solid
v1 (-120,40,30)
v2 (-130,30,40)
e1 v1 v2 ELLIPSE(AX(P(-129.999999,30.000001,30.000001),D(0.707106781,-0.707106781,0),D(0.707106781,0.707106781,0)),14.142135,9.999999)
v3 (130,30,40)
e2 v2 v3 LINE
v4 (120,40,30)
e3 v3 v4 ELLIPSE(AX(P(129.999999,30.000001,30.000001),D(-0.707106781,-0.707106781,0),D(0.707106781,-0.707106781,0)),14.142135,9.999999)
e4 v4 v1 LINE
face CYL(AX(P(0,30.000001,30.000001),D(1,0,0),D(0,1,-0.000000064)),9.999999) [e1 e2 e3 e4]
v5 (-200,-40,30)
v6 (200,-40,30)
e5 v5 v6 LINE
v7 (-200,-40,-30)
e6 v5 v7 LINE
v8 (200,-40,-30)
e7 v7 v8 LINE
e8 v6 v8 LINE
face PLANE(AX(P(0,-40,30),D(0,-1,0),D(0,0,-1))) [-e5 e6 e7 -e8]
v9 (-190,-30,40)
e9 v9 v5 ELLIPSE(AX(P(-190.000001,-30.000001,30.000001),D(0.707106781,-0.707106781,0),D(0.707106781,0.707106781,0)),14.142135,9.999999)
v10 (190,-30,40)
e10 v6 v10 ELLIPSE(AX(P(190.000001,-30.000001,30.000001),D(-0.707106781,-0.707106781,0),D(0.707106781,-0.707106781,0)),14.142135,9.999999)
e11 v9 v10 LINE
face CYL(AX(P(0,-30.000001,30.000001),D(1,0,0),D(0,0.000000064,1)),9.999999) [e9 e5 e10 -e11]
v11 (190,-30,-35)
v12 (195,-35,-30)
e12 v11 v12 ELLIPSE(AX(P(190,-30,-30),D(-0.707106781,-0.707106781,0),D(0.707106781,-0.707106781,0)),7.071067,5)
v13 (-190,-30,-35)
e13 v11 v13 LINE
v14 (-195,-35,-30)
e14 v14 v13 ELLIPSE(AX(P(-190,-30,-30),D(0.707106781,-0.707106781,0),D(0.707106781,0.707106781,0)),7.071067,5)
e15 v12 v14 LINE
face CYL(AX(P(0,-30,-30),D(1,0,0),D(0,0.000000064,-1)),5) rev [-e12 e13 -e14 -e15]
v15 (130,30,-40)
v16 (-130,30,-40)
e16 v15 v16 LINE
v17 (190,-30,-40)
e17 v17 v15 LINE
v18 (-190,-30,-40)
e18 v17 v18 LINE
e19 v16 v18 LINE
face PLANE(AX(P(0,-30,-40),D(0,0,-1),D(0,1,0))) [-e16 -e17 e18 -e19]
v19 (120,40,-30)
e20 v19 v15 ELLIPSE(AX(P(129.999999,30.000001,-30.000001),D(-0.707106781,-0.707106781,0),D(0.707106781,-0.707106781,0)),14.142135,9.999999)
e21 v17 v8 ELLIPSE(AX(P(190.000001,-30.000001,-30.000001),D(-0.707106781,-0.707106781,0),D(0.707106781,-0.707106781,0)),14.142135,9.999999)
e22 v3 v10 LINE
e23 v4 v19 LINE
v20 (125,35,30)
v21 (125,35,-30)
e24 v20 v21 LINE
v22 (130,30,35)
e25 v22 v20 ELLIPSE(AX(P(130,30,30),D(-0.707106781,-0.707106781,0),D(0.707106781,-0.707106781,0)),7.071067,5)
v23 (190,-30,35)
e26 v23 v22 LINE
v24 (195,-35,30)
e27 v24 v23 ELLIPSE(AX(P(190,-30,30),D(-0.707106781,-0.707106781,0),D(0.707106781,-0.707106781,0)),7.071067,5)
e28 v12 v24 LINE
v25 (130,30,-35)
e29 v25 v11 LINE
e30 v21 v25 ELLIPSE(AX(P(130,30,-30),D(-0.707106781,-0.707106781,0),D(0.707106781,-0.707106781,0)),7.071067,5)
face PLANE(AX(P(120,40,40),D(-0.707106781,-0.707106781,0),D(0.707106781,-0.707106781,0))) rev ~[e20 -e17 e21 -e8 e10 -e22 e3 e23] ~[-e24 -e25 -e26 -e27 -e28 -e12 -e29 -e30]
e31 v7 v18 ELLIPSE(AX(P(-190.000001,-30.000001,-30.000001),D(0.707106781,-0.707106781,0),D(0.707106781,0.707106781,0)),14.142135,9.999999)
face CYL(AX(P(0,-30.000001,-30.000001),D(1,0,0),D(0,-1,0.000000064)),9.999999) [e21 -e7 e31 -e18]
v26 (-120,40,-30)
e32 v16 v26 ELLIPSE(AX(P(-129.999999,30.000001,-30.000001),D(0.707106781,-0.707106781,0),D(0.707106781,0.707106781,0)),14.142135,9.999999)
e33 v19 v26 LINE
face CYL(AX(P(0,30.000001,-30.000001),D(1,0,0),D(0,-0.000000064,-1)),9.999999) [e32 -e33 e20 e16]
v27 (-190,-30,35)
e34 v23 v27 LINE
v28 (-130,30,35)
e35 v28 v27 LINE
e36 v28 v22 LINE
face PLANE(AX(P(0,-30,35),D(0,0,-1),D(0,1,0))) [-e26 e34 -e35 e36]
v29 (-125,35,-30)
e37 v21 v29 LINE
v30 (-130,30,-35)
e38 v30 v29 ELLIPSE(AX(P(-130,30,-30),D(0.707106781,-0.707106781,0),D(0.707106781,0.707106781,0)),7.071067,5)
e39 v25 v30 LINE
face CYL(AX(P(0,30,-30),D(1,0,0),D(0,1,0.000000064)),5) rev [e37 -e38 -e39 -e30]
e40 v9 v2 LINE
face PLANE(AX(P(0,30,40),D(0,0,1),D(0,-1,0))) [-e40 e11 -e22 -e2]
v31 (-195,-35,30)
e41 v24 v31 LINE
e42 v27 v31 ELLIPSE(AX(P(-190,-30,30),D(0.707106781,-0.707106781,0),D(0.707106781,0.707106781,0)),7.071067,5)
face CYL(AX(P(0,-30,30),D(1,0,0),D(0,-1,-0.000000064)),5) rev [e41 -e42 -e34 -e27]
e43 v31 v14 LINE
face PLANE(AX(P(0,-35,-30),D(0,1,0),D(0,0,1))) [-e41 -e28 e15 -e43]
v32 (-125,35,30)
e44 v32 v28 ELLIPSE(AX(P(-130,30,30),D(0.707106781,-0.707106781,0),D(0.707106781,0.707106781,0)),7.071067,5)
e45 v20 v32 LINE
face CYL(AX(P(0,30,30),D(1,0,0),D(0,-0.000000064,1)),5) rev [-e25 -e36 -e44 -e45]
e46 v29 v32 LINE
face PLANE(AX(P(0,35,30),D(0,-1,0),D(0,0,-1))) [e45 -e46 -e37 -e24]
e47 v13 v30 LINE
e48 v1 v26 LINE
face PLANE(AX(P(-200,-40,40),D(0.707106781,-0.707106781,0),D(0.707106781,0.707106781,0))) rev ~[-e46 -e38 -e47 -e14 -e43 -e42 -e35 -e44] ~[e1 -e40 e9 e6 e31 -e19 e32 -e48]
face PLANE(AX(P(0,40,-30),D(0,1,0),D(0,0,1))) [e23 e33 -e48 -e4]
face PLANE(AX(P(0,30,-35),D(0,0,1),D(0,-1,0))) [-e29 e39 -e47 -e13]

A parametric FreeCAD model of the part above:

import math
import FreeCAD as App
import Part
import Sketcher


def add_polygon(sketch, points):
    """Adds a closed chain of lines whose ends are joined by coincident constraints."""
    first, n = sketch.GeometryCount, len(points)
    for a, b in zip(points, points[1:] + points[:1]):
        sketch.addGeometry(Part.LineSegment(App.Vector(*a, 0), App.Vector(*b, 0)), False)
    for i in range(n):
        sketch.addConstraint(Sketcher.Constraint("Coincident", first + i, 2, first + (i + 1) % n, 1))

doc = App.newDocument("Part")
params = doc.addObject("Spreadsheet::Sheet", "Params")
for row, (alias, value) in enumerate([
    ("sketch1_radius", "9.999999 mm"),
    ("sketch1_radius2", "5 mm"),
    ("sketch1_width", "60 mm"),
    ("pad1_length", "400 mm"),
    ("sketch2_width", "80 mm"),
], start=1):
    params.set(f"A{row}", alias)
    params.set(f"B{row}", "=" + value)
    params.setAlias(f"B{row}", alias)

body = doc.addObject("PartDesign::Body", "Body")

# Sketch on YZ plane
sketch1 = body.newObject("Sketcher::SketchObject", "Sketch")
sketch1.AttachmentSupport = (doc.getObject("YZ_Plane"), [""])
sketch1.MapMode = "FlatFace"
sketch1.addGeometry([
    Part.ArcOfCircle(Part.Circle(App.Vector(30, 30, 0), App.Vector(0, 0, 1), 10), math.radians(0), math.radians(90)),  # 0
    Part.LineSegment(App.Vector(30, 40, 0), App.Vector(-30, 40, 0)),  # 1
    Part.ArcOfCircle(Part.Circle(App.Vector(-30, 30, 0), App.Vector(0, 0, 1), 10), math.radians(90), math.radians(180)),  # 2
    Part.LineSegment(App.Vector(-40, 30, 0), App.Vector(-40, -30, 0)),  # 3
    Part.ArcOfCircle(Part.Circle(App.Vector(-30, -30, 0), App.Vector(0, 0, 1), 10), math.radians(180), math.radians(270)),  # 4
    Part.LineSegment(App.Vector(-30, -40, 0), App.Vector(30, -40, 0)),  # 5
    Part.ArcOfCircle(Part.Circle(App.Vector(30, -30, 0), App.Vector(0, 0, 1), 10), math.radians(-90), math.radians(0)),  # 6
    Part.LineSegment(App.Vector(40, -30, 0), App.Vector(40, 30, 0)),  # 7
    Part.LineSegment(App.Vector(-30, 35, 0), App.Vector(30, 35, 0)),  # 8
    Part.ArcOfCircle(Part.Circle(App.Vector(30, 30, 0), App.Vector(0, 0, 1), 5), math.radians(0), math.radians(90)),  # 9
    Part.LineSegment(App.Vector(35, 30, 0), App.Vector(35, -30, 0)),  # 10
    Part.ArcOfCircle(Part.Circle(App.Vector(30, -30, 0), App.Vector(0, 0, 1), 5), math.radians(-90), math.radians(0)),  # 11
    Part.LineSegment(App.Vector(30, -35, 0), App.Vector(-30, -35, 0)),  # 12
    Part.ArcOfCircle(Part.Circle(App.Vector(-30, -30, 0), App.Vector(0, 0, 1), 5), math.radians(180), math.radians(270)),  # 13
    Part.LineSegment(App.Vector(-35, -30, 0), App.Vector(-35, 30, 0)),  # 14
    Part.ArcOfCircle(Part.Circle(App.Vector(-30, 30, 0), App.Vector(0, 0, 1), 5), math.radians(90), math.radians(180)),  # 15
], False)
sketch1.addConstraint([
    Sketcher.Constraint("Tangent", 0, 2, 1, 1),
    Sketcher.Constraint("Tangent", 1, 2, 2, 1),
    Sketcher.Constraint("Tangent", 2, 2, 3, 1),
    Sketcher.Constraint("Tangent", 3, 2, 4, 1),
    Sketcher.Constraint("Tangent", 4, 2, 5, 1),
    Sketcher.Constraint("Tangent", 5, 2, 6, 1),
    Sketcher.Constraint("Tangent", 6, 2, 7, 1),
    Sketcher.Constraint("Tangent", 7, 2, 0, 1),
    Sketcher.Constraint("Tangent", 8, 2, 9, 2),
    Sketcher.Constraint("Tangent", 9, 1, 10, 1),
    Sketcher.Constraint("Tangent", 10, 2, 11, 2),
    Sketcher.Constraint("Tangent", 11, 1, 12, 1),
    Sketcher.Constraint("Tangent", 12, 2, 13, 2),
    Sketcher.Constraint("Tangent", 13, 1, 14, 1),
    Sketcher.Constraint("Tangent", 14, 2, 15, 2),
    Sketcher.Constraint("Tangent", 15, 1, 8, 1),
    Sketcher.Constraint("Horizontal", 1),
    Sketcher.Constraint("Vertical", 3),
    Sketcher.Constraint("Horizontal", 5),
    Sketcher.Constraint("Vertical", 7),
    Sketcher.Constraint("Horizontal", 8),
    Sketcher.Constraint("Vertical", 10),
    Sketcher.Constraint("Horizontal", 12),
    Sketcher.Constraint("Vertical", 14),
    Sketcher.Constraint("Coincident", 9, 3, 0, 3),
    Sketcher.Constraint("Coincident", 11, 3, 6, 3),
    Sketcher.Constraint("Coincident", 13, 3, 4, 3),
    Sketcher.Constraint("Equal", 0, 2),
    Sketcher.Constraint("Equal", 2, 4),
    Sketcher.Constraint("Equal", 4, 6),
    Sketcher.Constraint("Equal", 13, 15),
    Sketcher.Constraint("Symmetric", 0, 3, 4, 3, -1, 1),
    Sketcher.Constraint("Equal", 12, 3),
    Sketcher.Constraint("Radius", 0, 9.999999),
    Sketcher.Constraint("Radius", 9, 5.0),
    Sketcher.Constraint("DistanceX", 1, 2, 1, 1, 60.0),
])
sketch1.setExpression("Constraints[33]", "Params.sketch1_radius")
sketch1.setExpression("Constraints[34]", "Params.sketch1_radius2")
sketch1.setExpression("Constraints[35]", "Params.sketch1_width")
pad1 = body.newObject("PartDesign::Pad", "Pad")
pad1.Profile = sketch1
pad1.setExpression("Length", "Params.pad1_length")
pad1.Midplane = True

# Sketch on XY plane
sketch2 = body.newObject("Sketcher::SketchObject", "Sketch001")
sketch2.AttachmentSupport = (doc.getObject("XY_Plane"), [""])
sketch2.MapMode = "FlatFace"
sketch2.AttachmentOffset = App.Placement(App.Vector(0, 0, 40), App.Rotation())
add_polygon(sketch2, [(-200, 40), (-200, -40), (-120, 40)])  # lines 0-2
add_polygon(sketch2, [(200, -40), (200, 40), (120, 40)])  # lines 3-5
sketch2.addConstraint([
    Sketcher.Constraint("Vertical", 0),
    Sketcher.Constraint("Horizontal", 2),
    Sketcher.Constraint("Vertical", 3),
    Sketcher.Constraint("Horizontal", 4),
    Sketcher.Constraint("Symmetric", 0, 2, 3, 2, -1, 1),
    Sketcher.Constraint("Symmetric", 1, 2, 4, 2, -2),
    Sketcher.Constraint("Perpendicular", 1, 5),
    Sketcher.Constraint("Horizontal", 0, 2, 5, 2),
    Sketcher.Constraint("DistanceX", 2, 2, 2, 1, 80.0),
    Sketcher.Constraint("DistanceX", 0, 2, -1, 1, 200.0),
])
sketch2.setExpression("Constraints[14]", "Params.sketch2_width")
pocket1 = body.newObject("PartDesign::Pocket", "Pocket")
pocket1.Profile = sketch2
pocket1.Type = "ThroughAll"

doc.recompute()
